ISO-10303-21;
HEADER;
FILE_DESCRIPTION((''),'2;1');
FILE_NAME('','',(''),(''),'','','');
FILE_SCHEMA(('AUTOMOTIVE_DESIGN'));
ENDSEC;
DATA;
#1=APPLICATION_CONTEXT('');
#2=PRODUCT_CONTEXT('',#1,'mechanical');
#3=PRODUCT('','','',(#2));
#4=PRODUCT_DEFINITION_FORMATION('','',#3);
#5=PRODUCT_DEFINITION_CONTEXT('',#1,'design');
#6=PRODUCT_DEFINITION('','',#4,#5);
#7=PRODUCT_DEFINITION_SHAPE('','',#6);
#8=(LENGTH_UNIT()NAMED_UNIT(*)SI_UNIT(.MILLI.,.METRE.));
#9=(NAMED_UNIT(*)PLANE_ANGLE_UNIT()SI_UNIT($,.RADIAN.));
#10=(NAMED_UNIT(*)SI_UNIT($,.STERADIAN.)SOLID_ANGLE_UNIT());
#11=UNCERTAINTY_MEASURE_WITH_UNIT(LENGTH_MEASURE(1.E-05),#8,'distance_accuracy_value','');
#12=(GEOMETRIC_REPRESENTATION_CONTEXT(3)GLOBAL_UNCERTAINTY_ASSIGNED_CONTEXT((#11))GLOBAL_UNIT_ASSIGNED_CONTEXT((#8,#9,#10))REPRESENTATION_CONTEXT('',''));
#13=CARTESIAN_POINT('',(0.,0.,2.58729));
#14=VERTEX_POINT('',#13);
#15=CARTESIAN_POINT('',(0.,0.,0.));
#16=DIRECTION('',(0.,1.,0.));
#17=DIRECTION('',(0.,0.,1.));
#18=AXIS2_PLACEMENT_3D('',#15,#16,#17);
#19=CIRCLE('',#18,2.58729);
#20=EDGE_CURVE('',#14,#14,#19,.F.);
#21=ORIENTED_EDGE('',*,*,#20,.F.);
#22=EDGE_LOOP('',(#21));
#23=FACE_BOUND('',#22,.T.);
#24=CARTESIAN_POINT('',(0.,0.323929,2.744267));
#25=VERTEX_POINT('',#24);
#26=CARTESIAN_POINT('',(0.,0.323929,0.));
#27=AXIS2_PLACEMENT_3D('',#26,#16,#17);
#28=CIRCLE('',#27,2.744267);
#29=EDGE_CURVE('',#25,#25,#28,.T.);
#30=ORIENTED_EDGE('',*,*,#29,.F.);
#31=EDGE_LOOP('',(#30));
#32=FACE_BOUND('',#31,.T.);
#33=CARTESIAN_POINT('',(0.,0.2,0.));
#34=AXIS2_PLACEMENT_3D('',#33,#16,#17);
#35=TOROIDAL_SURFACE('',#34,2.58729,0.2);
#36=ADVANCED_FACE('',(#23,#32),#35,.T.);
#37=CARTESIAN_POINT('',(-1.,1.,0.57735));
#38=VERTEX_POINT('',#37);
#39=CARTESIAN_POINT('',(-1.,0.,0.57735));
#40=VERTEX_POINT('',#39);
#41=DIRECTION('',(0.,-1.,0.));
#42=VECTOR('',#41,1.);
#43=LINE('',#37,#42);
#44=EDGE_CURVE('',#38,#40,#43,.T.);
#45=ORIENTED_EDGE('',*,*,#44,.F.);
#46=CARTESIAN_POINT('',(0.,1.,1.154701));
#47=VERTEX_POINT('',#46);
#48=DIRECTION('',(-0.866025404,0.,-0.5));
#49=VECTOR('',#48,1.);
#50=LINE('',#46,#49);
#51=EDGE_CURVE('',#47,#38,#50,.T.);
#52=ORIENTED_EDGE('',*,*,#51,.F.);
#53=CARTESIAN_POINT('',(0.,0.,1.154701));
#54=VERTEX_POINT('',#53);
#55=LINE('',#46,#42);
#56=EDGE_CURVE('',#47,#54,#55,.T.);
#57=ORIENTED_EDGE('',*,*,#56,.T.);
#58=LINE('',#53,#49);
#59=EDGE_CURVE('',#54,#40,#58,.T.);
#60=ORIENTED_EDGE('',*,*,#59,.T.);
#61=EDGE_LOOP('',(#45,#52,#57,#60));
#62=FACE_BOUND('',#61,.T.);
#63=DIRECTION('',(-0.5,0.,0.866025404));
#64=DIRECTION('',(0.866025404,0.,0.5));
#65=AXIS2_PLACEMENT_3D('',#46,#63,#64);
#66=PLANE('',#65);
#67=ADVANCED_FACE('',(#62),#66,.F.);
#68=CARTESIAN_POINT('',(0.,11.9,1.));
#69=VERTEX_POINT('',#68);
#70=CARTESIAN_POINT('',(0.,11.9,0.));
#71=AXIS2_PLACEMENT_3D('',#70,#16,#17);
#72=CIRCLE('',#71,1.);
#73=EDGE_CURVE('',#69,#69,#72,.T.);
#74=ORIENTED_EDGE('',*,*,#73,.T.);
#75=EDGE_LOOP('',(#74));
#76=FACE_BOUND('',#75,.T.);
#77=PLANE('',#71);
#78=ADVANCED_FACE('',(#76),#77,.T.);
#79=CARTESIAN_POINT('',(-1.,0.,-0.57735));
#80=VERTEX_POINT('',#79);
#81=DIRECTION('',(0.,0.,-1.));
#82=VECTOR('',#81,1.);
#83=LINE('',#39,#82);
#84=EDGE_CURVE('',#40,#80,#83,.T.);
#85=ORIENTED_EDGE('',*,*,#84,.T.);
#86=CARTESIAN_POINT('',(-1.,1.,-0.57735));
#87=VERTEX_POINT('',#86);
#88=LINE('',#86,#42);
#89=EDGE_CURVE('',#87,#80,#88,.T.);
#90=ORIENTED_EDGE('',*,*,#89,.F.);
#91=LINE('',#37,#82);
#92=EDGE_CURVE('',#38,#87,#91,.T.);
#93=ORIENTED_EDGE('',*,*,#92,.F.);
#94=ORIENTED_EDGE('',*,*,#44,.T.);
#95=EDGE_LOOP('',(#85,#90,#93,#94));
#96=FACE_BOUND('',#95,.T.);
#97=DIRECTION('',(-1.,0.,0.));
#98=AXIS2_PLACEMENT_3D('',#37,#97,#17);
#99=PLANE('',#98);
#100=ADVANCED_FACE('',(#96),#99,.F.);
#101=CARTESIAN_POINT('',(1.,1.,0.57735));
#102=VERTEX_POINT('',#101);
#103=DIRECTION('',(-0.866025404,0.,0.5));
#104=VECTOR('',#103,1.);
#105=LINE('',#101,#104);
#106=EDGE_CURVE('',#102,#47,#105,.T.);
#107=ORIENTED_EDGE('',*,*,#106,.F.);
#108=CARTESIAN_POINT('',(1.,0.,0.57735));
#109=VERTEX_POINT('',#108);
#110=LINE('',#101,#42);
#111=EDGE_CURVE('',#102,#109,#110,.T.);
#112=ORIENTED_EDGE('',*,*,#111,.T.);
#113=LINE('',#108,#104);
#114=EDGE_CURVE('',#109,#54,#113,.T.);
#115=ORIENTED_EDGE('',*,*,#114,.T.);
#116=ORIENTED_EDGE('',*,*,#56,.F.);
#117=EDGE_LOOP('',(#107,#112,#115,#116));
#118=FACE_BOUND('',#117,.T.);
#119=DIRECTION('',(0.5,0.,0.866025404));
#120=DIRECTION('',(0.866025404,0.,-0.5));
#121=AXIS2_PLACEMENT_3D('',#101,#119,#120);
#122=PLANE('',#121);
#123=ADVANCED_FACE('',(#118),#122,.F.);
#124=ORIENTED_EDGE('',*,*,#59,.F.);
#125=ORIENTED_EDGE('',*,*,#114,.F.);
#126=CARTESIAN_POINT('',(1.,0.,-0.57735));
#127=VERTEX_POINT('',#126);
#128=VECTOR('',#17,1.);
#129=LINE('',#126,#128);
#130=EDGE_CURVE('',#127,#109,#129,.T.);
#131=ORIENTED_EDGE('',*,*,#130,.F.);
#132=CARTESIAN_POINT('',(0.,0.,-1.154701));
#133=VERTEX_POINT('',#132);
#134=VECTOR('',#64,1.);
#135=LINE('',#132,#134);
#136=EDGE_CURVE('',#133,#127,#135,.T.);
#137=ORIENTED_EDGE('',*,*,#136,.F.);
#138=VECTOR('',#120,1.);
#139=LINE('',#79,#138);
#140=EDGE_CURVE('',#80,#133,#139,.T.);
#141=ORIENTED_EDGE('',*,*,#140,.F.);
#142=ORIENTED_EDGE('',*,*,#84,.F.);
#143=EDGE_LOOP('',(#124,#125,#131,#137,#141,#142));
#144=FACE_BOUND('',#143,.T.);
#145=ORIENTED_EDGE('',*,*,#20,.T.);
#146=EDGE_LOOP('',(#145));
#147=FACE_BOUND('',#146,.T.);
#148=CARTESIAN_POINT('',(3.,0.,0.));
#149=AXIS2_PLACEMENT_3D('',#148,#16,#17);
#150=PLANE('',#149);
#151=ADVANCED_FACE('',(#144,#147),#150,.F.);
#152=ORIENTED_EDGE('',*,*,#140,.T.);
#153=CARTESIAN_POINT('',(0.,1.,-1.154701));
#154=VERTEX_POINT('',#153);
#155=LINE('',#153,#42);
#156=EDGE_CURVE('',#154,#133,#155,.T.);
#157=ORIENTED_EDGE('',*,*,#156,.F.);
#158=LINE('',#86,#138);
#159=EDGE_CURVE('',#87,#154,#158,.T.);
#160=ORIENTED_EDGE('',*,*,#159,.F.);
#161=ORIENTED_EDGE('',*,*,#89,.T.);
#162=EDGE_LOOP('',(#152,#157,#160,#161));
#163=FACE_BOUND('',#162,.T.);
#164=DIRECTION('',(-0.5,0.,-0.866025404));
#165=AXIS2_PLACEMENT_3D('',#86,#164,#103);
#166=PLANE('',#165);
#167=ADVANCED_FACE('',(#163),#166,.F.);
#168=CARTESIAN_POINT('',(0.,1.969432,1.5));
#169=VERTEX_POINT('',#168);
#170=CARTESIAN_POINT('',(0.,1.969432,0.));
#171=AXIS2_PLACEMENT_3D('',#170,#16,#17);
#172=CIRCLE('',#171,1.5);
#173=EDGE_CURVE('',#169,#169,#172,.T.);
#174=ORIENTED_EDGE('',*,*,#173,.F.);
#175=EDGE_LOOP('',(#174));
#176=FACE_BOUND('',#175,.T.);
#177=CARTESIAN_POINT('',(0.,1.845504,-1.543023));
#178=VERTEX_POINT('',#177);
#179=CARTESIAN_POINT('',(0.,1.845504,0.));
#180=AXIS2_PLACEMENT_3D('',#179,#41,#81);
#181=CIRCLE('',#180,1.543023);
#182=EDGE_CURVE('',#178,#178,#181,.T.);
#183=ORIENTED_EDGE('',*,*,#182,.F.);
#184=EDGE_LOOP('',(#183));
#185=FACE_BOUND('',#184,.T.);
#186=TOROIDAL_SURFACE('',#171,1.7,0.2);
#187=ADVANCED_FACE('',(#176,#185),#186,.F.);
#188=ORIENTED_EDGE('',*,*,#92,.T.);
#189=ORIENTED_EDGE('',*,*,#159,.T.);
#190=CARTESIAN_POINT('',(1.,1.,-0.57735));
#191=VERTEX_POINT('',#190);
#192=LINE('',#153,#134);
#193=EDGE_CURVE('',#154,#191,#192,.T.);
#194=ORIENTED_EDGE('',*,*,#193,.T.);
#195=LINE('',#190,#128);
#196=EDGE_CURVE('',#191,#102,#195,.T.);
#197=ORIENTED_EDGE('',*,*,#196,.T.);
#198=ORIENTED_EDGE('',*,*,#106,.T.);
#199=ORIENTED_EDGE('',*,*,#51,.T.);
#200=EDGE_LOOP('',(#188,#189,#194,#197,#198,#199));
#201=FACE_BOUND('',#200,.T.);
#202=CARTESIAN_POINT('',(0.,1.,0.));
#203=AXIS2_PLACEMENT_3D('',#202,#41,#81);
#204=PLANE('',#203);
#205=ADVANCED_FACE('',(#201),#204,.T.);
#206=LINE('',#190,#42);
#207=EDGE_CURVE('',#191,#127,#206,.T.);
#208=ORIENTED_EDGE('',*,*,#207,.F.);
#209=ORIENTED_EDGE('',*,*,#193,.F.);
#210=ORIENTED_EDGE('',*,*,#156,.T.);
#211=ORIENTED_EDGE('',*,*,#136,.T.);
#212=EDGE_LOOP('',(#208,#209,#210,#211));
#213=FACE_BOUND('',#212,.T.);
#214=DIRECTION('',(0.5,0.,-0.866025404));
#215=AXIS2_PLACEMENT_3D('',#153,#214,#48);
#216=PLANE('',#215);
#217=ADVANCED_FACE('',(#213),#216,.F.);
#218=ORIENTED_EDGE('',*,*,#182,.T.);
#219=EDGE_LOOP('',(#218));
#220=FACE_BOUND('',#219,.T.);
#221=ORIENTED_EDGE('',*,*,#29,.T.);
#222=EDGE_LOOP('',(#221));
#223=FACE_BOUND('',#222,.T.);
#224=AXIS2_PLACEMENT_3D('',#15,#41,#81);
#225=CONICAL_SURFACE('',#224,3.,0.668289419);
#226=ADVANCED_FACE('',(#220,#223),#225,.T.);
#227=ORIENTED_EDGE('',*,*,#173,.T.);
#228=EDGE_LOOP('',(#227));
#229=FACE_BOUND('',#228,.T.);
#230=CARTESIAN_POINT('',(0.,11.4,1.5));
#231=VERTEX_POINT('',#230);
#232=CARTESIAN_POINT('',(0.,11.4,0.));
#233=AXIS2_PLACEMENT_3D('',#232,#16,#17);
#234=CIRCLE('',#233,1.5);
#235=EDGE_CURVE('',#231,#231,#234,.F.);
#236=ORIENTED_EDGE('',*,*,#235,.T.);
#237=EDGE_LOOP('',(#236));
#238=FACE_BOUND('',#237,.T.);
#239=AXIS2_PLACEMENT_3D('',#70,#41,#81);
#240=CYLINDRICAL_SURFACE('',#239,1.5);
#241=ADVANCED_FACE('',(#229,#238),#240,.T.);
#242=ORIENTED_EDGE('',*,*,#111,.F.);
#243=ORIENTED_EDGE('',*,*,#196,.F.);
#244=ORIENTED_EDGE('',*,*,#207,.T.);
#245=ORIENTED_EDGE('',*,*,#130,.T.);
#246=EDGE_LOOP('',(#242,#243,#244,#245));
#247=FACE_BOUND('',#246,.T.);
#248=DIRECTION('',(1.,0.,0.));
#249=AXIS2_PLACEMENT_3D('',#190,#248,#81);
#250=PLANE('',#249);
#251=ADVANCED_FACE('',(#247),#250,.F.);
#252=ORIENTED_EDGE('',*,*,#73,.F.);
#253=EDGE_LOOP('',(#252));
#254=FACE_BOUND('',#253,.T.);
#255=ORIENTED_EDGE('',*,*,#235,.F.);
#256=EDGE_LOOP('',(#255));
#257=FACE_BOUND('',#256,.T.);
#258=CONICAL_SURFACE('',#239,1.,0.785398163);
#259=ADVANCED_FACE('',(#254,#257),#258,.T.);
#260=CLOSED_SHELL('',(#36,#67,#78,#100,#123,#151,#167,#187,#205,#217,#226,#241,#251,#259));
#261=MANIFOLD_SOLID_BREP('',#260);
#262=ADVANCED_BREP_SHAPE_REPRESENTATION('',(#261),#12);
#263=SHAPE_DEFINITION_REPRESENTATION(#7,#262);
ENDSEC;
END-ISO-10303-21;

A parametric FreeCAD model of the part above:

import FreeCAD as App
import Part
import Sketcher
from FreeCAD import Vector
Q = App.Units.Quantity


def edges_at(feature, points):
    """Names of the edges that pass closest to the given points."""
    edges = feature.Shape.Edges
    near = lambda p: min(range(len(edges)), key=lambda i: edges[i].distToShape(Part.Vertex(*p))[0])
    return sorted({f"Edge{near(p) + 1}" for p in points})


def add_polygon(sketch, points):
    """Adds a closed chain of lines whose ends are joined by coincident constraints."""
    first, n = sketch.GeometryCount, len(points)
    for a, b in zip(points, points[1:] + points[:1]):
        sketch.addGeometry(Part.LineSegment(App.Vector(*a, 0), App.Vector(*b, 0)), False)
    for i in range(n):
        sketch.addConstraint(Sketcher.Constraint("Coincident", first + i, 2, first + (i + 1) % n, 1))

doc = App.newDocument("Part")
body = doc.addObject("PartDesign::Body", "Body")

sketch1 = body.newObject("Sketcher::SketchObject", "Sketch")
sketch1.AttachmentSupport = (doc.getObject("XY_Plane"), [""])
sketch1.MapMode = "FlatFace"
add_polygon(sketch1, [(1.5, 1.9), (0, 1.9), (0, 0), (3, 0)])
sketch1.addConstraint(Sketcher.Constraint("Horizontal", 0))
sketch1.addConstraint(Sketcher.Constraint("Vertical", 1))
sketch1.addConstraint(Sketcher.Constraint("Horizontal", 2))
sketch1.addConstraint(Sketcher.Constraint("Coincident", 1, 2, -1, 1))
sketch1.addConstraint(Sketcher.Constraint("DistanceX", 2, 1, 2, 2, 3.0))
sketch1.addConstraint(Sketcher.Constraint("DistanceX", 0, 2, 0, 1, 1.5))
sketch1.addConstraint(Sketcher.Constraint("DistanceY", 1, 2, 1, 1, 1.9))
revolution = body.newObject("PartDesign::Revolution", "Revolution")
revolution.Profile = sketch1
revolution.ReferenceAxis = (sketch1, ["V_Axis"])
revolution.Angle = 360

sketch2 = body.newObject("Sketcher::SketchObject", "Sketch001")
sketch2.AttachmentSupport = (doc.getObject("XZ_Plane"), [""])
sketch2.MapMode = "FlatFace"
sketch2.AttachmentOffset = App.Placement(Vector(0, 0, -1.9), App.Rotation())
sketch2.addGeometry(Part.Circle(Vector(0, 0, 0), Vector(0, 0, 1), 1.5), False)
sketch2.addConstraint(Sketcher.Constraint("Coincident", 0, 3, -1, 1))
sketch2.addConstraint(Sketcher.Constraint("Diameter", 0, 3.0))
pad1 = body.newObject("PartDesign::Pad", "Pad")
pad1.Profile = sketch2
pad1.Length = 10
pad1.Reversed = True

sketch3 = body.newObject("Sketcher::SketchObject", "Sketch002")
sketch3.AttachmentSupport = (doc.getObject("XZ_Plane"), [""])
sketch3.MapMode = "FlatFace"
add_polygon(sketch3, [(0, 1.2), (-1, 0.6), (-1, -0.6), (0, -1.2), (1, -0.6), (1, 0.6)])
sketch3.addConstraint(Sketcher.Constraint("Vertical", 1))
sketch3.addConstraint(Sketcher.Constraint("Vertical", 4))
sketch3.addConstraint(Sketcher.Constraint("Symmetric", 0, 2, 3, 2, -1, 1))
sketch3.addConstraint(Sketcher.Constraint("Symmetric", 2, 2, 5, 2, -1, 1))
sketch3.addConstraint(Sketcher.Constraint("PointOnObject", 2, 2, -2))
sketch3.addConstraint(Sketcher.Constraint("Parallel", 2, 5))
sketch3.addConstraint(Sketcher.Constraint("Horizontal", 1, 2, 3, 2))
sketch3.addConstraint(Sketcher.Constraint("Angle", 0, Q("-150 deg")))
sketch3.addConstraint(Sketcher.Constraint("DistanceX", 0, 2, -1, 1, 1.0))
sketch3.addConstraint(Sketcher.Constraint("DistanceY", 1, 2, 1, 1, 1.154701))
pocket1 = body.newObject("PartDesign::Pocket", "Pocket")
pocket1.Profile = sketch3
pocket1.Length = 1
doc.recompute()

chamfer = body.newObject("PartDesign::Chamfer", "Chamfer")
chamfer.Base = (pocket1, edges_at(pocket1, [(0, 11.9, -1.5)]))
chamfer.Size = 0.5
doc.recompute()

fillet = body.newObject("PartDesign::Fillet", "Fillet")
fillet.Base = (chamfer, edges_at(chamfer, [(0, 0, -3), (0, 1.9, -1.5)]))
fillet.Radius = 0.2

doc.recompute()
